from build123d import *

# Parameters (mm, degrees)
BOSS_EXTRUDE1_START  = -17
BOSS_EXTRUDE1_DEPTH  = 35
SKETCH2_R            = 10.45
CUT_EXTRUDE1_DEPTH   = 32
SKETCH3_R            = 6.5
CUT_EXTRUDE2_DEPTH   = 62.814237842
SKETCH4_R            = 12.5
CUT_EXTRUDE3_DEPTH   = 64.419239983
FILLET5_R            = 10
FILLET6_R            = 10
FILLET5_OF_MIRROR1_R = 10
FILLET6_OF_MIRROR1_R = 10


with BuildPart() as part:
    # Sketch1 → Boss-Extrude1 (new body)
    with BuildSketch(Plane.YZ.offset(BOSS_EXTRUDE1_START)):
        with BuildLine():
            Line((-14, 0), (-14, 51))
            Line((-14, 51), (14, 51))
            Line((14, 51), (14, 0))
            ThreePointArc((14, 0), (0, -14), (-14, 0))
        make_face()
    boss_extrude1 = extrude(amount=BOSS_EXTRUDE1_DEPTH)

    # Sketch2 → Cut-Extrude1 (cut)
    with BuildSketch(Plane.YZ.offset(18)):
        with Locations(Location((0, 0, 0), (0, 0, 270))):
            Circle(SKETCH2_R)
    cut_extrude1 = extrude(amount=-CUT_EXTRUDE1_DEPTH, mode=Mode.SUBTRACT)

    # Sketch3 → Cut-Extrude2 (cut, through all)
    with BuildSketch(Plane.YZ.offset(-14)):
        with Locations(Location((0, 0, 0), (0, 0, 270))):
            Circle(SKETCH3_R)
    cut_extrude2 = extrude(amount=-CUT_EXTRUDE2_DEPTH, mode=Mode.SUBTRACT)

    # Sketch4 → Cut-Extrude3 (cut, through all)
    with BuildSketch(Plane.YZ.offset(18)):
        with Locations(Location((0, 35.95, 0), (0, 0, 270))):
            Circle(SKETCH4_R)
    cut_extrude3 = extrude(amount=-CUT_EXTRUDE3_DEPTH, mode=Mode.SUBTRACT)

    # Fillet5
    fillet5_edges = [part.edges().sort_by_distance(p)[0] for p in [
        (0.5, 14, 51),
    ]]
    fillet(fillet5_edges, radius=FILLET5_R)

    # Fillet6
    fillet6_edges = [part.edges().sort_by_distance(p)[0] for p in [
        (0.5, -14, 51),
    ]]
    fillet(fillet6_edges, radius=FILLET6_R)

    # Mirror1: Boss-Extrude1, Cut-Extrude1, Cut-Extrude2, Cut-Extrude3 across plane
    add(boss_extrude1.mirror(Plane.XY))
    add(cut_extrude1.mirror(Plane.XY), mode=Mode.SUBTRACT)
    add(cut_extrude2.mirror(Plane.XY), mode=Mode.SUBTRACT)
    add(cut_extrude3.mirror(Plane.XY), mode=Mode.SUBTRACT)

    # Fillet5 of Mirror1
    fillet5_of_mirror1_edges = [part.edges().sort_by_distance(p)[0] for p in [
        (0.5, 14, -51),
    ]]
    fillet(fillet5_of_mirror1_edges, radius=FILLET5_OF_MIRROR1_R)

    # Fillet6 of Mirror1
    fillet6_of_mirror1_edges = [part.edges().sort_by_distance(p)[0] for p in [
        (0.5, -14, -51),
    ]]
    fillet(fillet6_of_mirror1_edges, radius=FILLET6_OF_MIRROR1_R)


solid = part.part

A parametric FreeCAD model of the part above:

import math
import FreeCAD as App
import Part
import Sketcher


def edges_at(feature, points):
    """Names of the edges that pass closest to the given points."""
    edges = feature.Shape.Edges
    near = lambda p: min(range(len(edges)), key=lambda i: edges[i].distToShape(Part.Vertex(*p))[0])
    return sorted({f"Edge{near(p) + 1}" for p in points})

doc = App.newDocument("Part")
body = doc.addObject("PartDesign::Body", "Body")

# Sketch on YZ plane
sketch1 = body.newObject("Sketcher::SketchObject", "Sketch")
sketch1.AttachmentSupport = (doc.getObject("YZ_Plane"), [""])
sketch1.MapMode = "FlatFace"
sketch1.AttachmentOffset = App.Placement(App.Vector(0, 0, -17), App.Rotation())
sketch1.addGeometry([
    Part.LineSegment(App.Vector(-14, 51, 0), App.Vector(-14, 0, 0)),
    Part.ArcOfCircle(Part.Circle(App.Vector(0, 0, 0), App.Vector(0, 0, 1), 14), math.radians(180), math.radians(360)),
    Part.LineSegment(App.Vector(14, 0, 0), App.Vector(14, 51, 0)),
    Part.LineSegment(App.Vector(14, 51, 0), App.Vector(-14, 51, 0)),
], False)
sketch1.addConstraint([
    Sketcher.Constraint("Tangent", 0, 2, 1, 1),
    Sketcher.Constraint("Tangent", 1, 2, 2, 1),
    Sketcher.Constraint("Coincident", 2, 2, 3, 1),
    Sketcher.Constraint("Coincident", 3, 2, 0, 1),
    Sketcher.Constraint("Vertical", 0),
    Sketcher.Constraint("Vertical", 2),
    Sketcher.Constraint("Horizontal", 3),
    Sketcher.Constraint("Coincident", 1, 3, -1, 1),
    Sketcher.Constraint("Radius", 1, 14.0),
    Sketcher.Constraint("DistanceY", 0, 2, 0, 1, 51.0),
])
pad1 = body.newObject("PartDesign::Pad", "Pad")
pad1.Profile = sketch1
pad1.Length = 35

# Sketch on YZ plane
sketch2 = body.newObject("Sketcher::SketchObject", "Sketch001")
sketch2.AttachmentSupport = (doc.getObject("YZ_Plane"), [""])
sketch2.MapMode = "FlatFace"
sketch2.AttachmentOffset = App.Placement(App.Vector(0, 0, 18), App.Rotation())
sketch2.addGeometry(Part.Circle(App.Vector(0, 0, 0), App.Vector(0, 0, 1), 10.45), False)
sketch2.addConstraint([
    Sketcher.Constraint("Coincident", 0, 3, -1, 1),
    Sketcher.Constraint("Diameter", 0, 20.9),
])
pocket1 = body.newObject("PartDesign::Pocket", "Pocket")
pocket1.Profile = sketch2
pocket1.Length = 32

# Sketch on YZ plane
sketch3 = body.newObject("Sketcher::SketchObject", "Sketch002")
sketch3.AttachmentSupport = (doc.getObject("YZ_Plane"), [""])
sketch3.MapMode = "FlatFace"
sketch3.AttachmentOffset = App.Placement(App.Vector(0, 0, -14), App.Rotation())
sketch3.addGeometry(Part.Circle(App.Vector(0, 0, 0), App.Vector(0, 0, 1), 6.5), False)
sketch3.addConstraint([
    Sketcher.Constraint("Coincident", 0, 3, -1, 1),
    Sketcher.Constraint("Diameter", 0, 13.0),
])
pocket2 = body.newObject("PartDesign::Pocket", "Pocket001")
pocket2.Profile = sketch3
pocket2.Type = "ThroughAll"

# Sketch on YZ plane
sketch4 = body.newObject("Sketcher::SketchObject", "Sketch003")
sketch4.AttachmentSupport = (doc.getObject("YZ_Plane"), [""])
sketch4.MapMode = "FlatFace"
sketch4.AttachmentOffset = App.Placement(App.Vector(0, 0, 18), App.Rotation())
sketch4.addGeometry(Part.Circle(App.Vector(0, 35.95, 0), App.Vector(0, 0, 1), 12.5), False)
sketch4.addConstraint([
    Sketcher.Constraint("PointOnObject", 0, 3, -2),
    Sketcher.Constraint("Diameter", 0, 25.0),
    Sketcher.Constraint("DistanceY", -1, 1, 0, 3, 35.95),
])
pocket3 = body.newObject("PartDesign::Pocket", "Pocket002")
pocket3.Profile = sketch4
pocket3.Type = "ThroughAll"
doc.recompute()

fillet = body.newObject("PartDesign::Fillet", "Fillet")
fillet.Base = (pocket3, edges_at(pocket3, [(0.5, 14, 51)]))
fillet.Radius = 10
doc.recompute()

fillet2 = body.newObject("PartDesign::Fillet", "Fillet001")
fillet2.Base = (fillet, edges_at(fillet, [(0.5, -14, 51)]))
fillet2.Radius = 10
doc.recompute()

mirrored = body.newObject("PartDesign::Mirrored", "Mirrored")
mirrored.Originals = [pad1, pocket1, pocket2, pocket3]
mirrored.MirrorPlane = (doc.getObject("XY_Plane"), [""])
body.Tip = mirrored
doc.recompute()

fillet3 = body.newObject("PartDesign::Fillet", "Fillet002")
fillet3.Base = (mirrored, edges_at(mirrored, [(0.5, 14, -51)]))
fillet3.Radius = 10
doc.recompute()

fillet4 = body.newObject("PartDesign::Fillet", "Fillet003")
fillet4.Base = (fillet3, edges_at(fillet3, [(0.5, -14, -51)]))
fillet4.Radius = 10

doc.recompute()
